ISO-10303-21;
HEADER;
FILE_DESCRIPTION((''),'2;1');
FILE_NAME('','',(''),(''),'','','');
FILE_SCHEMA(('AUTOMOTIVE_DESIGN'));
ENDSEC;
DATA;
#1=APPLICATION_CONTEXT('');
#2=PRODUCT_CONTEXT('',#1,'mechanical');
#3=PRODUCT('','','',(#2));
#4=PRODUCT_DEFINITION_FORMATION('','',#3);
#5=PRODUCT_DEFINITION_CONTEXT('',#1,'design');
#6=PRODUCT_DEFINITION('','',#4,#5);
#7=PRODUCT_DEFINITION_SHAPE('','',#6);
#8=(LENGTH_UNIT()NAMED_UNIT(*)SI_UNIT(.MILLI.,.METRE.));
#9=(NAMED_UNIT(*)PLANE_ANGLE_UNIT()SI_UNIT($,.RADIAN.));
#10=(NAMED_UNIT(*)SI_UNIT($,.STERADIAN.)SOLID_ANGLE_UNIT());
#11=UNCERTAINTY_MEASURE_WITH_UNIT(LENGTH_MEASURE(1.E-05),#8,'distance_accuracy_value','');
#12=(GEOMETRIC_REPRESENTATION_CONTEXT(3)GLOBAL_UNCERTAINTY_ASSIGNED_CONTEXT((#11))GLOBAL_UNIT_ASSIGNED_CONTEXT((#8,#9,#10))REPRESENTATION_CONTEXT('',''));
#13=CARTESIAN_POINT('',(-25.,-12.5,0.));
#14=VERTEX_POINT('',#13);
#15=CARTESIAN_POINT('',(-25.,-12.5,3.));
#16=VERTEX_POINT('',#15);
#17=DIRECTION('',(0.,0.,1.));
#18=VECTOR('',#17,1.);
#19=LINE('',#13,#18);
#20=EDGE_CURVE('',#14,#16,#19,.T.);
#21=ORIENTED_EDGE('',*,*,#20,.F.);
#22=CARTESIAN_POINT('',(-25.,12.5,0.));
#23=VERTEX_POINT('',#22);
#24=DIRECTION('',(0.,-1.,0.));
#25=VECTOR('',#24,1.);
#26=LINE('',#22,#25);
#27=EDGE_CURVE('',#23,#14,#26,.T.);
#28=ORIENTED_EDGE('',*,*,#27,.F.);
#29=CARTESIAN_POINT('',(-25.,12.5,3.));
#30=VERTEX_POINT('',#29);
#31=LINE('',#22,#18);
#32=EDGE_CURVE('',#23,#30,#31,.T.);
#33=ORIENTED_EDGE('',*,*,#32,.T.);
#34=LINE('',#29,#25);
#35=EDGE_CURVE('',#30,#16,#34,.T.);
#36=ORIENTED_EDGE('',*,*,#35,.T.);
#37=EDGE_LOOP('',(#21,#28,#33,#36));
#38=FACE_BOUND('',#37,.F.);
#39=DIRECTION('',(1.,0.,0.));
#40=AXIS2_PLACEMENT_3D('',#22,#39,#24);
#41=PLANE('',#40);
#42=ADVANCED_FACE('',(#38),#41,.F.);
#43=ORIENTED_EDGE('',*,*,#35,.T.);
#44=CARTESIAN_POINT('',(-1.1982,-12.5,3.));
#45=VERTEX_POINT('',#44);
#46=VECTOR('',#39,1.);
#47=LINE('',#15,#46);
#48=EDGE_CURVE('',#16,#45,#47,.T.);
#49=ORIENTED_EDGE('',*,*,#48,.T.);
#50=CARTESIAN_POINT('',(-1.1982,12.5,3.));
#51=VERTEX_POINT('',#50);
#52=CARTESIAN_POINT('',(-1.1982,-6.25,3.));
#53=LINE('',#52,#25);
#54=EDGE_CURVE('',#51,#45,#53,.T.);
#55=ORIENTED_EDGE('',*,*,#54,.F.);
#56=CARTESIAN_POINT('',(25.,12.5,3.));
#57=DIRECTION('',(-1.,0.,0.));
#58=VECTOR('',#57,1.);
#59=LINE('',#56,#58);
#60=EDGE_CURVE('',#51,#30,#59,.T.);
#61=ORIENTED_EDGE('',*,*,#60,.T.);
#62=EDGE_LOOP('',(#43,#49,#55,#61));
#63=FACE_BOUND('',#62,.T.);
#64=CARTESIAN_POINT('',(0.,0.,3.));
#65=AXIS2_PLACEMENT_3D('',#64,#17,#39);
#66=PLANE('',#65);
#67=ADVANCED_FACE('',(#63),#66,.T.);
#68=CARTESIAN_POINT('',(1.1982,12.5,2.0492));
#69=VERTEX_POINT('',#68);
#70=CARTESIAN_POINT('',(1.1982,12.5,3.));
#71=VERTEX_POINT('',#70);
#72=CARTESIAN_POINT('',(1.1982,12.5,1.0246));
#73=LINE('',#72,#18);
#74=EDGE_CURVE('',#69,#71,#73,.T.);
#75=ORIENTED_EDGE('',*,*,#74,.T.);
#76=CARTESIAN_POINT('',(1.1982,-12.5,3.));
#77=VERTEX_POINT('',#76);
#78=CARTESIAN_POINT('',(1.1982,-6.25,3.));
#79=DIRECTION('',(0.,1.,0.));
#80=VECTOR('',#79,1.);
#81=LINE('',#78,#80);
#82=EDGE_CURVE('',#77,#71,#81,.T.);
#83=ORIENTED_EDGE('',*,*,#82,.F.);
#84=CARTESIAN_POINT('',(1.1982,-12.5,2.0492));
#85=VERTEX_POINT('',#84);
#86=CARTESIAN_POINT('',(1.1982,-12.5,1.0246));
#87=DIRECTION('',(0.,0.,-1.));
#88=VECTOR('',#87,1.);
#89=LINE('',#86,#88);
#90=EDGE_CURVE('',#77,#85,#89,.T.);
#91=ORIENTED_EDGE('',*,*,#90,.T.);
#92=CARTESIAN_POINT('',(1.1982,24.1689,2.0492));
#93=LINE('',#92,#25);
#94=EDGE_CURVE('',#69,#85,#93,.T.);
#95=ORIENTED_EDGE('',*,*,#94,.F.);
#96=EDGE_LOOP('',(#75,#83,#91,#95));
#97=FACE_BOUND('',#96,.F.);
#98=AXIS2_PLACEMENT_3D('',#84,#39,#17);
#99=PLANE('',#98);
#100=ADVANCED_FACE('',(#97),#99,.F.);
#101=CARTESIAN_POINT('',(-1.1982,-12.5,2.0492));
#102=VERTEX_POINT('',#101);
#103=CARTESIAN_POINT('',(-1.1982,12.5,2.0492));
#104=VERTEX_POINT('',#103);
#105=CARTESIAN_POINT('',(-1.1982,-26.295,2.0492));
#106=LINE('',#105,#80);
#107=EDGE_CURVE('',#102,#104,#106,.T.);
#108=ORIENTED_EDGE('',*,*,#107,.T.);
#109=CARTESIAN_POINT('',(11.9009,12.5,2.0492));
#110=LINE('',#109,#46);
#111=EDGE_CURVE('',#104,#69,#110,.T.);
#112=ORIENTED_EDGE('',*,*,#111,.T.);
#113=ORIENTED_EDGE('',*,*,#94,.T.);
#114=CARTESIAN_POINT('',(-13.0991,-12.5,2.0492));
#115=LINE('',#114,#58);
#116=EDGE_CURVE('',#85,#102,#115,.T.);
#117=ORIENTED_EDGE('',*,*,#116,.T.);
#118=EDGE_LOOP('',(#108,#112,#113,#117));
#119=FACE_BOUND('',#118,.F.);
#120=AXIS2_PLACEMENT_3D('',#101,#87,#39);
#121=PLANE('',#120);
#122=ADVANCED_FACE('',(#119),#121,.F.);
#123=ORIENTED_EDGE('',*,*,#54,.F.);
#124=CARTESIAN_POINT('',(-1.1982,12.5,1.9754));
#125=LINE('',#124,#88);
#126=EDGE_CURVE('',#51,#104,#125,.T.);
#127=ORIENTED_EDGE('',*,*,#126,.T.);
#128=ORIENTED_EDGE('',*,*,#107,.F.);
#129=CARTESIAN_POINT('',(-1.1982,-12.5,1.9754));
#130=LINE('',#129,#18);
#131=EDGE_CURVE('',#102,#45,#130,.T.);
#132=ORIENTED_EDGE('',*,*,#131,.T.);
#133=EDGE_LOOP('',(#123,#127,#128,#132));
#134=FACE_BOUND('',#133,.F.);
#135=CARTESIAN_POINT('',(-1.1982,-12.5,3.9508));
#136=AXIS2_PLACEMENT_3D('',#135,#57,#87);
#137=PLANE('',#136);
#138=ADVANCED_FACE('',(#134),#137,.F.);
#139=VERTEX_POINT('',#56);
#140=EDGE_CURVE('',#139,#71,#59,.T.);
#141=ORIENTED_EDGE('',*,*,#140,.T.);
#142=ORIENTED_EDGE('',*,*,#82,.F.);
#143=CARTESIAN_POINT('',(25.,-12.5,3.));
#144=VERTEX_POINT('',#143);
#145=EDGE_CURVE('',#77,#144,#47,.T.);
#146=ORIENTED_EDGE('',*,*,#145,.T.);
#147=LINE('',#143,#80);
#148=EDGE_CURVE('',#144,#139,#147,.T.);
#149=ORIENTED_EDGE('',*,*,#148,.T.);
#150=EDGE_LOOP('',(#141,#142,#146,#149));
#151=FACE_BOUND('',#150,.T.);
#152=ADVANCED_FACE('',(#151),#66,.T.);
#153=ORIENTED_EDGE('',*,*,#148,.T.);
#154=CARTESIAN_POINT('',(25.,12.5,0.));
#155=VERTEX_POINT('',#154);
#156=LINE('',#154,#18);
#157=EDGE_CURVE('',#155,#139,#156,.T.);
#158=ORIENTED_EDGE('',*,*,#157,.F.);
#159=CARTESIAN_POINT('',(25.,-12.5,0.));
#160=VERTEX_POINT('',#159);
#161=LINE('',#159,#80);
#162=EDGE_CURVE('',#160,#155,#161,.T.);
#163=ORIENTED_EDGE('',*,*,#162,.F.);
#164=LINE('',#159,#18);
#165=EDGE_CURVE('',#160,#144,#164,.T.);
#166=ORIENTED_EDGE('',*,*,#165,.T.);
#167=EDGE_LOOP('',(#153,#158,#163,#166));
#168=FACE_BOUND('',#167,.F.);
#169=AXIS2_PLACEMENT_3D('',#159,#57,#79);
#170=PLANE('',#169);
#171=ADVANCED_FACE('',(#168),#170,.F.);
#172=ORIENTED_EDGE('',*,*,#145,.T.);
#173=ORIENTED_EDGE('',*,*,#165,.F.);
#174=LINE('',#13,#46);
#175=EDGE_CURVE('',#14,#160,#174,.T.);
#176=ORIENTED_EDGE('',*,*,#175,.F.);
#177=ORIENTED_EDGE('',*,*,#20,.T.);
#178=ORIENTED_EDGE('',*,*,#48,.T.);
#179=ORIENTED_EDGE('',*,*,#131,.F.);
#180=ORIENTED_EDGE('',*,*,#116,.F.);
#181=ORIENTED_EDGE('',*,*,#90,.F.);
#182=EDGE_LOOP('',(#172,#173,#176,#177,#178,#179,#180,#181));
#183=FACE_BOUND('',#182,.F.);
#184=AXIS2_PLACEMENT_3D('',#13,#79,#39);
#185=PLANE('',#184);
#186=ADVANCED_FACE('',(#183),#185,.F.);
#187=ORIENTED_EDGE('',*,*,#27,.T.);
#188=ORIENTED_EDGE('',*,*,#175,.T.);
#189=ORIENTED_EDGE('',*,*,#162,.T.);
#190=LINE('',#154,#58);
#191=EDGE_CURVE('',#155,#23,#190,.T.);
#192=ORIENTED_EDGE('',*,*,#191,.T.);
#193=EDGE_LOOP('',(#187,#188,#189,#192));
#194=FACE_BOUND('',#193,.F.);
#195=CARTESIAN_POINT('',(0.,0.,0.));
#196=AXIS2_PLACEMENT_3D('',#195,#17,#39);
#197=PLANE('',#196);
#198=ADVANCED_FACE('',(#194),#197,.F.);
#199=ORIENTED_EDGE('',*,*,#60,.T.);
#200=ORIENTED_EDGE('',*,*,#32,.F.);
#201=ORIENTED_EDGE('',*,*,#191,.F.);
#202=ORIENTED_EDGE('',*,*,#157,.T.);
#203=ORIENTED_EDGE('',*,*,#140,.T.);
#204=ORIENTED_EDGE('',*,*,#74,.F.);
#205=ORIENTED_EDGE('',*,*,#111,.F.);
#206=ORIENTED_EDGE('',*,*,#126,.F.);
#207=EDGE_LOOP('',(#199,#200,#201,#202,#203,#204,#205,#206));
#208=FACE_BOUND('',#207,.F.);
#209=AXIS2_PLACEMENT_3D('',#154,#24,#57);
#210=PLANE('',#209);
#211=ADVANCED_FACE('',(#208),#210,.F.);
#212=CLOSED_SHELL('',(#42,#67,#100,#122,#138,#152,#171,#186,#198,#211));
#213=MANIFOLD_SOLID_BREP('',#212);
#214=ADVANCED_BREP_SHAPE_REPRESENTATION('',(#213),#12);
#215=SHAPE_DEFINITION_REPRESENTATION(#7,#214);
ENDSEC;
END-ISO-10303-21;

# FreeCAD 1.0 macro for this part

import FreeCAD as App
import Part
import Sketcher
from FreeCAD import Vector


def add_polygon(sketch, points):
    """Adds a closed chain of lines whose ends are joined by coincident constraints."""
    first, n = sketch.GeometryCount, len(points)
    for a, b in zip(points, points[1:] + points[:1]):
        sketch.addGeometry(Part.LineSegment(App.Vector(*a, 0), App.Vector(*b, 0)), False)
    for i in range(n):
        sketch.addConstraint(Sketcher.Constraint("Coincident", first + i, 2, first + (i + 1) % n, 1))

doc = App.newDocument("Part")
body = doc.addObject("PartDesign::Body", "Body")

sketch1 = body.newObject("Sketcher::SketchObject", "Sketch")
sketch1.AttachmentSupport = (doc.getObject("XY_Plane"), [""])
sketch1.MapMode = "FlatFace"
add_polygon(sketch1, [(-25, 12.5), (-25, -12.5), (25, -12.5), (25, 12.5)])
sketch1.addConstraint(Sketcher.Constraint("Vertical", 0))
sketch1.addConstraint(Sketcher.Constraint("Horizontal", 1))
sketch1.addConstraint(Sketcher.Constraint("Vertical", 2))
sketch1.addConstraint(Sketcher.Constraint("Horizontal", 3))
sketch1.addConstraint(Sketcher.Constraint("Symmetric", 0, 2, 2, 2, -1, 1))
sketch1.addConstraint(Sketcher.Constraint("DistanceX", 1, 1, 1, 2, 50.0))
sketch1.addConstraint(Sketcher.Constraint("DistanceY", 0, 2, 0, 1, 25.0))
pad1 = body.newObject("PartDesign::Pad", "Pad")
pad1.Profile = sketch1
pad1.Length = 3

sketch2 = body.newObject("Sketcher::SketchObject", "Sketch001")
sketch2.AttachmentSupport = (doc.getObject("XZ_Plane"), [""])
sketch2.MapMode = "FlatFace"
sketch2.AttachmentOffset = App.Placement(Vector(0, 0, 12.5), App.Rotation())
add_polygon(sketch2, [(-1.1982, 3.9508), (-1.1982, 2.0492), (1.1982, 2.0492), (1.1982, 3.9508)])
sketch2.addConstraint(Sketcher.Constraint("Vertical", 0))
sketch2.addConstraint(Sketcher.Constraint("Horizontal", 1))
sketch2.addConstraint(Sketcher.Constraint("Vertical", 2))
sketch2.addConstraint(Sketcher.Constraint("Horizontal", 3))
sketch2.addConstraint(Sketcher.Constraint("DistanceX", 1, 1, 1, 2, 2.3964))
sketch2.addConstraint(Sketcher.Constraint("DistanceY", 0, 2, 0, 1, 1.9016))
sketch2.addConstraint(Sketcher.Constraint("DistanceX", 0, 2, -1, 1, 1.1982))
sketch2.addConstraint(Sketcher.Constraint("DistanceY", -1, 1, 0, 2, 2.0492))
pocket1 = body.newObject("PartDesign::Pocket", "Pocket")
pocket1.Profile = sketch2
pocket1.Type = "ThroughAll"
pocket1.Midplane = True

doc.recompute()
